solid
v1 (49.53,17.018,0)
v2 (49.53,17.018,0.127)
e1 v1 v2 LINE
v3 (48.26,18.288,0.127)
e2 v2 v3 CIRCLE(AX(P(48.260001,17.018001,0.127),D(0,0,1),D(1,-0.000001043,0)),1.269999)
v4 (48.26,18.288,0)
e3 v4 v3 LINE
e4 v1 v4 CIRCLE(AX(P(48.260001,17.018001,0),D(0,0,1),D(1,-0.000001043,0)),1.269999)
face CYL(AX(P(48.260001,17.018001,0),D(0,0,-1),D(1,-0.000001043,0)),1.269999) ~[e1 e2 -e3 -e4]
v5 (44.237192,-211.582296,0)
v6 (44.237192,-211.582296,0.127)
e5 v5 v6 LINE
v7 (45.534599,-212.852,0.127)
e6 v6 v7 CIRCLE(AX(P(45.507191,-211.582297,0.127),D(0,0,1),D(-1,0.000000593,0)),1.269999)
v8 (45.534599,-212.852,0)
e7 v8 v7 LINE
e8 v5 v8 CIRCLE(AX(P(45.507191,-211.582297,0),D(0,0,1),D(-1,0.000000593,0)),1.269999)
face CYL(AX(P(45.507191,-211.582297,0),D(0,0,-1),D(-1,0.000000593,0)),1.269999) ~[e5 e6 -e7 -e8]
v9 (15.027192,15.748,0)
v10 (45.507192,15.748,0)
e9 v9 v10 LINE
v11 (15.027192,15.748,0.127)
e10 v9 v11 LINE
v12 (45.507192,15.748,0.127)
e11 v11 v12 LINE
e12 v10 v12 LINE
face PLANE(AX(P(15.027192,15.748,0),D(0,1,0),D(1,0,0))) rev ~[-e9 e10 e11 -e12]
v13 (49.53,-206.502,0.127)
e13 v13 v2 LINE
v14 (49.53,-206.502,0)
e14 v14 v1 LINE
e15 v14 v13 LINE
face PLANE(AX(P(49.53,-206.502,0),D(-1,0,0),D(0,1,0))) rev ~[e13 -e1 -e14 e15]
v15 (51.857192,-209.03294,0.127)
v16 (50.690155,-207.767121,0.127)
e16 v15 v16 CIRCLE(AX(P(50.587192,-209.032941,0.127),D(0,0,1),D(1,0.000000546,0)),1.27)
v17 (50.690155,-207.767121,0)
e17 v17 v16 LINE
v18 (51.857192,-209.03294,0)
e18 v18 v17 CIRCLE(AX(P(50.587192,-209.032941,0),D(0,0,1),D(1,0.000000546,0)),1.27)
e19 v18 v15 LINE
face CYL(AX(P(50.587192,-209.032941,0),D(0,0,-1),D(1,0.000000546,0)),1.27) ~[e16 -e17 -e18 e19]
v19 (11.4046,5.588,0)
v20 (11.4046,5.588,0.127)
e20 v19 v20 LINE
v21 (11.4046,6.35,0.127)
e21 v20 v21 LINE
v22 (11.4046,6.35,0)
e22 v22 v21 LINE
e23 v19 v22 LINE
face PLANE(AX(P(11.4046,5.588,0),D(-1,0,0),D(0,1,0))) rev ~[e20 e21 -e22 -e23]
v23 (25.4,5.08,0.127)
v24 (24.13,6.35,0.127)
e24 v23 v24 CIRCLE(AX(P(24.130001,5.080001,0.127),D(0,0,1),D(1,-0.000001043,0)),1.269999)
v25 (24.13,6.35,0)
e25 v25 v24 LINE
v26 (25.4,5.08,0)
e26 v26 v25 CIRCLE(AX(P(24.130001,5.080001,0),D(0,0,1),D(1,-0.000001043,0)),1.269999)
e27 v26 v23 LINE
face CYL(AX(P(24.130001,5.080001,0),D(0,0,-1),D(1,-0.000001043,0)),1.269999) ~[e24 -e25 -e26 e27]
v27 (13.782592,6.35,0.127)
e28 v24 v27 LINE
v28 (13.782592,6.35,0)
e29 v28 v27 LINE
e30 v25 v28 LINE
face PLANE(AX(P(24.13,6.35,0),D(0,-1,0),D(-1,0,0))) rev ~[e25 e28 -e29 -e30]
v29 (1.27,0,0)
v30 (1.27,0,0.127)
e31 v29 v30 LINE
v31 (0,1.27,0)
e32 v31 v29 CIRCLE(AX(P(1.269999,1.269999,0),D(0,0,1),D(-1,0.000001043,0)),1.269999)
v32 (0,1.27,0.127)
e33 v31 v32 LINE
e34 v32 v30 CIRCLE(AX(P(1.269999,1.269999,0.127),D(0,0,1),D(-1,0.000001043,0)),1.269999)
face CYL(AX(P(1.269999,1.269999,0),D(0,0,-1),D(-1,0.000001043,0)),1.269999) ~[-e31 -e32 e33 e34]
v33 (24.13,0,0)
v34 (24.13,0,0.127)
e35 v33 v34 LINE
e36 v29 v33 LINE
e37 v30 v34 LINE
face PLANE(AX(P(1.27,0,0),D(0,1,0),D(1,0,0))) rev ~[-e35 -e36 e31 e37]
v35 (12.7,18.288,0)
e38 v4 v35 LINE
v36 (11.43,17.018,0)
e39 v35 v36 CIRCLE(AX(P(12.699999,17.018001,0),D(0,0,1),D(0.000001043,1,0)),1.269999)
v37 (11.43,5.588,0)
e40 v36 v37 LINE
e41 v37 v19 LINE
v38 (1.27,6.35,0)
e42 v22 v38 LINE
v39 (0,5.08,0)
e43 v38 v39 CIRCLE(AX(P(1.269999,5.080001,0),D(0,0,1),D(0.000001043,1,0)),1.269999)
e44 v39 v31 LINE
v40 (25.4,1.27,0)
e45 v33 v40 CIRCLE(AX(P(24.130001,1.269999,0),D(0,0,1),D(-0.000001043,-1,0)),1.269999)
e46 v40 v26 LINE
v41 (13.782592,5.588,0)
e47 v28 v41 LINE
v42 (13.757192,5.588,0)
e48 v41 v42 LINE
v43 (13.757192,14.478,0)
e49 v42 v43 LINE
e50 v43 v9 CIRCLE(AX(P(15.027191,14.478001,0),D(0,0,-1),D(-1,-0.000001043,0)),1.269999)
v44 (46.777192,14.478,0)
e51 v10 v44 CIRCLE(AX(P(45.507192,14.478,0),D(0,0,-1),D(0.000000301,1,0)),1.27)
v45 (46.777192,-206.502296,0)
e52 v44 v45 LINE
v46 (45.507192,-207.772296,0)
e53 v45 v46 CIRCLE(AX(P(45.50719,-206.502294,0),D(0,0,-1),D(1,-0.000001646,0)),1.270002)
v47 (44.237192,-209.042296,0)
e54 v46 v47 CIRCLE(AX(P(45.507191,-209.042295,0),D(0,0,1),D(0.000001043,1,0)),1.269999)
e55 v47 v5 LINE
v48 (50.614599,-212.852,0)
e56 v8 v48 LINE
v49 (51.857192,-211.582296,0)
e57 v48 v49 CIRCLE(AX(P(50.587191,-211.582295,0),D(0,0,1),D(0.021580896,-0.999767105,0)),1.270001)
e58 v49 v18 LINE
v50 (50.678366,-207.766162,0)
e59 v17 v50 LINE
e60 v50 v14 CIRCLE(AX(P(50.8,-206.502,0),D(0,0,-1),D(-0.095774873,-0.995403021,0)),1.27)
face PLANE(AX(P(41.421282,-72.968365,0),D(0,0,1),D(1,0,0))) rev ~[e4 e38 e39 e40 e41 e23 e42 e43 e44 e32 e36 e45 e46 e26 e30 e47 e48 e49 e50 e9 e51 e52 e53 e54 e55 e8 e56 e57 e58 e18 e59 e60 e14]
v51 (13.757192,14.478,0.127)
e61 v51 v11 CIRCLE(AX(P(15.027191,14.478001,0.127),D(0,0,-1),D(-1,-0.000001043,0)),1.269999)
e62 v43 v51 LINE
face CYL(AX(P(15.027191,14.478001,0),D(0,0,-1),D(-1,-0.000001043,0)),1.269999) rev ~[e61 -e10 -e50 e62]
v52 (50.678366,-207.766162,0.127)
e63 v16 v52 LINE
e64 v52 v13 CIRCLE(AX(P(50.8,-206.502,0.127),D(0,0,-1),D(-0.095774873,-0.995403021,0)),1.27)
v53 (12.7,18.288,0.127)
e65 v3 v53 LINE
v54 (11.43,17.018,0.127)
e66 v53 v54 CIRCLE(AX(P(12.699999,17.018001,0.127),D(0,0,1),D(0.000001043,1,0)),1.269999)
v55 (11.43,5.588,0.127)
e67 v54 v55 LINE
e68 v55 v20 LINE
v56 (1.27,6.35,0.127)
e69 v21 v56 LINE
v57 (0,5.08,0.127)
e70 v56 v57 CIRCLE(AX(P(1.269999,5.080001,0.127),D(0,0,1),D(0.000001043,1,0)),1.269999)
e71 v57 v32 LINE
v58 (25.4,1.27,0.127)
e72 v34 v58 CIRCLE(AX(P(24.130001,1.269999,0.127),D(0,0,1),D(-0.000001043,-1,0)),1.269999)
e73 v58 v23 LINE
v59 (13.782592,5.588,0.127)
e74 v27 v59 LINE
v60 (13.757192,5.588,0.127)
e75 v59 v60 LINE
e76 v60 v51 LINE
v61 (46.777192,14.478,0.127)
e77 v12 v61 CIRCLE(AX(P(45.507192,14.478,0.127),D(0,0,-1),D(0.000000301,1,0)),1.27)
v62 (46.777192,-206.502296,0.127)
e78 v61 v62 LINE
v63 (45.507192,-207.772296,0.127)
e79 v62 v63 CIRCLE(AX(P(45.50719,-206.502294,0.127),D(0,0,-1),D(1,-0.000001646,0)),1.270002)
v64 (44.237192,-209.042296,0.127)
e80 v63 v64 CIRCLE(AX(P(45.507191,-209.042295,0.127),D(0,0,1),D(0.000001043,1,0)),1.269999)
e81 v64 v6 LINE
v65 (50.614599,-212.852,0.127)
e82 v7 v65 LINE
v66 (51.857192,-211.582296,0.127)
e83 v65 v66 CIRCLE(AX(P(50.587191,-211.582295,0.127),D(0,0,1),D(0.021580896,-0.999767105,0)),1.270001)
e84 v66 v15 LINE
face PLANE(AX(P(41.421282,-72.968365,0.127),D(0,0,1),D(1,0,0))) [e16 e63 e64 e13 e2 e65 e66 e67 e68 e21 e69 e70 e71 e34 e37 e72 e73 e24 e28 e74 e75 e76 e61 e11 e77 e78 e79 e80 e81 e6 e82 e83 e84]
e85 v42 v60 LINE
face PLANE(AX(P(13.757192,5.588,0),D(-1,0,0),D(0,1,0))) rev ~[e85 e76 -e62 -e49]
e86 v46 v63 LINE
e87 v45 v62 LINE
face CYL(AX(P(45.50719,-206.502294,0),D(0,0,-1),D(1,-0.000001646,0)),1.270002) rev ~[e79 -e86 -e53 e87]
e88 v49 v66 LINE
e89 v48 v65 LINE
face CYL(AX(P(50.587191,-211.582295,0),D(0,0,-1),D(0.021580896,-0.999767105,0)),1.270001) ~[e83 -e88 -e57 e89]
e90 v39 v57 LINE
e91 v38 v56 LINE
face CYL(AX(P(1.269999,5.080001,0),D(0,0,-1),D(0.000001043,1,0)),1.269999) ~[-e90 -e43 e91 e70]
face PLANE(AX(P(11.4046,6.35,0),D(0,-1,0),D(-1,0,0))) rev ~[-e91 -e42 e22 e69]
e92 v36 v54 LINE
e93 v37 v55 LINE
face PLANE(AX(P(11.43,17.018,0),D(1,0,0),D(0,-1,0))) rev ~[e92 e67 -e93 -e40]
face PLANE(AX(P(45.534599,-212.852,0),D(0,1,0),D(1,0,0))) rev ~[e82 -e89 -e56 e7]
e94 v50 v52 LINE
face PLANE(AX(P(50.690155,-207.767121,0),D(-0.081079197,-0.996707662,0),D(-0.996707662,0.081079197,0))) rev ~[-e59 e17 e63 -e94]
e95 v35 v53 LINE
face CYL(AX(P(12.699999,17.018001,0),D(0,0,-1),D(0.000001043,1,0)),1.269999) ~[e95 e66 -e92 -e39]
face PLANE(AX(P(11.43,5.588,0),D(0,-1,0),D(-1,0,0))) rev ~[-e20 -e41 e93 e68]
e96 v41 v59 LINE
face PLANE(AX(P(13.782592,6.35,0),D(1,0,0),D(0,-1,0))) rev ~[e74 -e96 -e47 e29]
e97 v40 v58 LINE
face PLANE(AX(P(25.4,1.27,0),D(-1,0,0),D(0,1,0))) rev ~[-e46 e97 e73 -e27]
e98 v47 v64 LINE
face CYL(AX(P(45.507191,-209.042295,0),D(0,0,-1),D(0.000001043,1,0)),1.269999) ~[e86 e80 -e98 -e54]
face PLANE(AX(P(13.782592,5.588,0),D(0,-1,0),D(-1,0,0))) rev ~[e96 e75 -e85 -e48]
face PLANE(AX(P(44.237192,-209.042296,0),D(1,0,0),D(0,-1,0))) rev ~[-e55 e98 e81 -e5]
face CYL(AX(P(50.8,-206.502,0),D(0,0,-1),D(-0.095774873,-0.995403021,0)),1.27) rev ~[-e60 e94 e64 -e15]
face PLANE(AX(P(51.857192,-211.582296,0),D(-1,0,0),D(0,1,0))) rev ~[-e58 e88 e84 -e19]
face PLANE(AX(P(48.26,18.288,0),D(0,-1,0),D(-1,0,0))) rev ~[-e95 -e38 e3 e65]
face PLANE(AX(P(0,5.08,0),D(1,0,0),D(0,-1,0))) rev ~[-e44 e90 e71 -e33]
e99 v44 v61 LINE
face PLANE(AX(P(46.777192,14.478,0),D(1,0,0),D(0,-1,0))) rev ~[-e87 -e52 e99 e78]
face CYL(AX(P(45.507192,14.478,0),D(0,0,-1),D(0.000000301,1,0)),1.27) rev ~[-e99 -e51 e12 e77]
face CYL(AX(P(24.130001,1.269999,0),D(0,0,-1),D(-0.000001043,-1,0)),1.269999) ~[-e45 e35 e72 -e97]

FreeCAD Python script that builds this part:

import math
import FreeCAD as App
import Part
import Sketcher
Q = App.Units.Quantity

doc = App.newDocument("Part")
body = doc.addObject("PartDesign::Body", "Body")

# Sketch on XY plane
sketch1 = body.newObject("Sketcher::SketchObject", "Sketch")
sketch1.AttachmentSupport = (doc.getObject("XY_Plane"), [""])
sketch1.MapMode = "FlatFace"
sketch1.addGeometry(Part.ArcOfCircle(Part.Circle(App.Vector(1.269999, 1.269999, 0), App.Vector(0, 0, 1), 1.269999), math.radians(179.99994), math.radians(270.00006)), False)
sketch1.addGeometry(Part.LineSegment(App.Vector(1.27, 0, 0), App.Vector(24.13, 0, 0)), False)
sketch1.addGeometry(Part.ArcOfCircle(Part.Circle(App.Vector(24.130001, 1.269999, 0), App.Vector(0, 0, 1), 1.269999), math.radians(-90.00006), math.radians(0.00006)), False)
sketch1.addGeometry(Part.LineSegment(App.Vector(25.4, 1.27, 0), App.Vector(25.4, 5.08, 0)), False)
sketch1.addGeometry(Part.ArcOfCircle(Part.Circle(App.Vector(24.130001, 5.080001, 0), App.Vector(0, 0, 1), 1.269999), math.radians(-0.00006), math.radians(90.00006)), False)
sketch1.addGeometry(Part.LineSegment(App.Vector(24.13, 6.35, 0), App.Vector(13.782592, 6.35, 0)), False)
sketch1.addGeometry(Part.LineSegment(App.Vector(13.782592, 6.35, 0), App.Vector(13.782592, 5.588, 0)), False)
sketch1.addGeometry(Part.LineSegment(App.Vector(13.782592, 5.588, 0), App.Vector(13.757192, 5.588, 0)), False)
sketch1.addGeometry(Part.LineSegment(App.Vector(13.757192, 5.588, 0), App.Vector(13.757192, 14.478, 0)), False)
sketch1.addGeometry(Part.ArcOfCircle(Part.Circle(App.Vector(15.027191, 14.478001, 0), App.Vector(0, 0, 1), 1.269999), math.radians(89.99994), math.radians(180.00006)), False)
sketch1.addGeometry(Part.LineSegment(App.Vector(15.027192, 15.748, 0), App.Vector(45.507192, 15.748, 0)), False)
sketch1.addGeometry(Part.ArcOfCircle(Part.Circle(App.Vector(45.507192, 14.478, 0), App.Vector(0, 0, 1), 1.27), math.radians(0.000017), math.radians(89.999983)), False)
sketch1.addGeometry(Part.LineSegment(App.Vector(46.777192, 14.478, 0), App.Vector(46.777192, -206.502296, 0)), False)
sketch1.addGeometry(Part.ArcOfCircle(Part.Circle(App.Vector(45.50719, -206.502294, 0), App.Vector(0, 0, 1), 1.270002), math.radians(-89.999906), math.radians(-0.000094)), False)
sketch1.addGeometry(Part.ArcOfCircle(Part.Circle(App.Vector(45.507191, -209.042295, 0), App.Vector(0, 0, 1), 1.269999), math.radians(89.99994), math.radians(180.00006)), False)
sketch1.addGeometry(Part.LineSegment(App.Vector(44.237192, -209.042296, 0), App.Vector(44.237192, -211.582296, 0)), False)
sketch1.addGeometry(Part.ArcOfCircle(Part.Circle(App.Vector(45.507191, -211.582297, 0), App.Vector(0, 0, 1), 1.269999), math.radians(179.999966), math.radians(271.236602)), False)
sketch1.addGeometry(Part.LineSegment(App.Vector(45.534599, -212.852, 0), App.Vector(50.614599, -212.852, 0)), False)
sketch1.addGeometry(Part.ArcOfCircle(Part.Circle(App.Vector(50.587191, -211.582295, 0), App.Vector(0, 0, 1), 1.270001), math.radians(-88.76341), math.radians(-0.000044)), False)
sketch1.addGeometry(Part.LineSegment(App.Vector(51.857192, -211.582296, 0), App.Vector(51.857192, -209.03294, 0)), False)
sketch1.addGeometry(Part.ArcOfCircle(Part.Circle(App.Vector(50.587192, -209.032941, 0), App.Vector(0, 0, 1), 1.27), math.radians(0.000031), math.radians(85.349727)), False)
sketch1.addGeometry(Part.LineSegment(App.Vector(50.690155, -207.767121, 0), App.Vector(50.678366, -207.766162, 0)), False)
sketch1.addGeometry(Part.ArcOfCircle(Part.Circle(App.Vector(50.8, -206.502, 0), App.Vector(0, 0, 1), 1.27), math.radians(179.999997), math.radians(264.50408)), False)
sketch1.addGeometry(Part.LineSegment(App.Vector(49.53, -206.502, 0), App.Vector(49.53, 17.018, 0)), False)
sketch1.addGeometry(Part.ArcOfCircle(Part.Circle(App.Vector(48.260001, 17.018001, 0), App.Vector(0, 0, 1), 1.269999), math.radians(-0.00006), math.radians(90.00006)), False)
sketch1.addGeometry(Part.LineSegment(App.Vector(48.26, 18.288, 0), App.Vector(12.7, 18.288, 0)), False)
sketch1.addGeometry(Part.ArcOfCircle(Part.Circle(App.Vector(12.699999, 17.018001, 0), App.Vector(0, 0, 1), 1.269999), math.radians(89.99994), math.radians(180.00006)), False)
sketch1.addGeometry(Part.LineSegment(App.Vector(11.43, 17.018, 0), App.Vector(11.43, 5.588, 0)), False)
sketch1.addGeometry(Part.LineSegment(App.Vector(11.43, 5.588, 0), App.Vector(11.4046, 5.588, 0)), False)
sketch1.addGeometry(Part.LineSegment(App.Vector(11.4046, 5.588, 0), App.Vector(11.4046, 6.35, 0)), False)
sketch1.addGeometry(Part.LineSegment(App.Vector(11.4046, 6.35, 0), App.Vector(1.27, 6.35, 0)), False)
sketch1.addGeometry(Part.ArcOfCircle(Part.Circle(App.Vector(1.269999, 5.080001, 0), App.Vector(0, 0, 1), 1.269999), math.radians(89.99994), math.radians(180.00006)), False)
sketch1.addGeometry(Part.LineSegment(App.Vector(0, 5.08, 0), App.Vector(0, 1.27, 0)), False)
sketch1.addConstraint(Sketcher.Constraint("Coincident", 0, 2, 1, 1))
sketch1.addConstraint(Sketcher.Constraint("Coincident", 1, 2, 2, 1))
sketch1.addConstraint(Sketcher.Constraint("Coincident", 2, 2, 3, 1))
sketch1.addConstraint(Sketcher.Constraint("Coincident", 3, 2, 4, 1))
sketch1.addConstraint(Sketcher.Constraint("Coincident", 4, 2, 5, 1))
sketch1.addConstraint(Sketcher.Constraint("Coincident", 5, 2, 6, 1))
sketch1.addConstraint(Sketcher.Constraint("Coincident", 6, 2, 7, 1))
sketch1.addConstraint(Sketcher.Constraint("Coincident", 7, 2, 8, 1))
sketch1.addConstraint(Sketcher.Constraint("Coincident", 8, 2, 9, 2))
sketch1.addConstraint(Sketcher.Constraint("Coincident", 9, 1, 10, 1))
sketch1.addConstraint(Sketcher.Constraint("Coincident", 10, 2, 11, 2))
sketch1.addConstraint(Sketcher.Constraint("Coincident", 11, 1, 12, 1))
sketch1.addConstraint(Sketcher.Constraint("Coincident", 12, 2, 13, 2))
sketch1.addConstraint(Sketcher.Constraint("Coincident", 13, 1, 14, 1))
sketch1.addConstraint(Sketcher.Constraint("Coincident", 14, 2, 15, 1))
sketch1.addConstraint(Sketcher.Constraint("Coincident", 15, 2, 16, 1))
sketch1.addConstraint(Sketcher.Constraint("Coincident", 16, 2, 17, 1))
sketch1.addConstraint(Sketcher.Constraint("Coincident", 17, 2, 18, 1))
sketch1.addConstraint(Sketcher.Constraint("Coincident", 18, 2, 19, 1))
sketch1.addConstraint(Sketcher.Constraint("Coincident", 19, 2, 20, 1))
sketch1.addConstraint(Sketcher.Constraint("Coincident", 20, 2, 21, 1))
sketch1.addConstraint(Sketcher.Constraint("Coincident", 21, 2, 22, 2))
sketch1.addConstraint(Sketcher.Constraint("Coincident", 22, 1, 23, 1))
sketch1.addConstraint(Sketcher.Constraint("Coincident", 23, 2, 24, 1))
sketch1.addConstraint(Sketcher.Constraint("Coincident", 24, 2, 25, 1))
sketch1.addConstraint(Sketcher.Constraint("Coincident", 25, 2, 26, 1))
sketch1.addConstraint(Sketcher.Constraint("Coincident", 26, 2, 27, 1))
sketch1.addConstraint(Sketcher.Constraint("Coincident", 27, 2, 28, 1))
sketch1.addConstraint(Sketcher.Constraint("Coincident", 28, 2, 29, 1))
sketch1.addConstraint(Sketcher.Constraint("Coincident", 29, 2, 30, 1))
sketch1.addConstraint(Sketcher.Constraint("Coincident", 30, 2, 31, 1))
sketch1.addConstraint(Sketcher.Constraint("Coincident", 31, 2, 32, 1))
sketch1.addConstraint(Sketcher.Constraint("Coincident", 32, 2, 0, 1))
sketch1.addConstraint(Sketcher.Constraint("Horizontal", 1))
sketch1.addConstraint(Sketcher.Constraint("Vertical", 3))
sketch1.addConstraint(Sketcher.Constraint("Horizontal", 5))
sketch1.addConstraint(Sketcher.Constraint("Vertical", 6))
sketch1.addConstraint(Sketcher.Constraint("Horizontal", 7))
sketch1.addConstraint(Sketcher.Constraint("Vertical", 8))
sketch1.addConstraint(Sketcher.Constraint("Horizontal", 10))
sketch1.addConstraint(Sketcher.Constraint("Vertical", 12))
sketch1.addConstraint(Sketcher.Constraint("Vertical", 15))
sketch1.addConstraint(Sketcher.Constraint("Horizontal", 17))
sketch1.addConstraint(Sketcher.Constraint("Vertical", 19))
sketch1.addConstraint(Sketcher.Constraint("Vertical", 23))
sketch1.addConstraint(Sketcher.Constraint("Horizontal", 25))
sketch1.addConstraint(Sketcher.Constraint("Vertical", 27))
sketch1.addConstraint(Sketcher.Constraint("Horizontal", 28))
sketch1.addConstraint(Sketcher.Constraint("Vertical", 29))
sketch1.addConstraint(Sketcher.Constraint("Horizontal", 30))
sketch1.addConstraint(Sketcher.Constraint("Vertical", 32))
sketch1.addConstraint(Sketcher.Constraint("PointOnObject", 0, 2, -1))
sketch1.addConstraint(Sketcher.Constraint("PointOnObject", 31, 2, -2))
sketch1.addConstraint(Sketcher.Constraint("Radius", 0, Q("0.0499999 in")))
sketch1.addConstraint(Sketcher.Constraint("Radius", 2, Q("0.0499999 in")))
sketch1.addConstraint(Sketcher.Constraint("Radius", 4, Q("0.0499999 in")))
sketch1.addConstraint(Sketcher.Constraint("Radius", 9, Q("0.0499999 in")))
sketch1.addConstraint(Sketcher.Constraint("Radius", 11, Q("0.05 in")))
sketch1.addConstraint(Sketcher.Constraint("Radius", 13, Q("0.0500001 in")))
sketch1.addConstraint(Sketcher.Constraint("Radius", 14, Q("0.0499999 in")))
sketch1.addConstraint(Sketcher.Constraint("Radius", 16, Q("0.05 in")))
sketch1.addConstraint(Sketcher.Constraint("Radius", 18, Q("0.05 in")))
sketch1.addConstraint(Sketcher.Constraint("Radius", 20, Q("0.05 in")))
sketch1.addConstraint(Sketcher.Constraint("Radius", 22, Q("0.05 in")))
sketch1.addConstraint(Sketcher.Constraint("Radius", 24, Q("0.0499999 in")))
sketch1.addConstraint(Sketcher.Constraint("Radius", 26, Q("0.0499999 in")))
sketch1.addConstraint(Sketcher.Constraint("Radius", 31, Q("0.0499999 in")))
sketch1.addConstraint(Sketcher.Constraint("DistanceX", 1, 1, 1, 2, Q("0.9 in")))
sketch1.addConstraint(Sketcher.Constraint("DistanceX", 10, 1, 10, 2, Q("1.2 in")))
sketch1.addConstraint(Sketcher.Constraint("DistanceX", 17, 1, 17, 2, Q("0.2 in")))
sketch1.addConstraint(Sketcher.Constraint("DistanceX", 25, 2, 25, 1, Q("1.4 in")))
sketch1.addConstraint(Sketcher.Constraint("DistanceY", 15, 2, 15, 1, Q("0.1 in")))
sketch1.addConstraint(Sketcher.Constraint("DistanceY", 23, 1, 23, 2, Q("8.8 in")))
sketch1.addConstraint(Sketcher.Constraint("DistanceX", -1, 1, 22, 3, Q("2 in")))
sketch1.addConstraint(Sketcher.Constraint("DistanceX", -1, 1, 2, 2, Q("1 in")))
sketch1.addConstraint(Sketcher.Constraint("DistanceY", 3, 1, 3, 2, Q("0.15 in")))
sketch1.addConstraint(Sketcher.Constraint("DistanceY", 6, 2, 6, 1, Q("0.03 in")))
sketch1.addConstraint(Sketcher.Constraint("DistanceY", 8, 1, 8, 2, Q("0.35 in")))
sketch1.addConstraint(Sketcher.Constraint("DistanceY", 27, 2, 27, 1, Q("0.45 in")))
sketch1.addConstraint(Sketcher.Constraint("DistanceY", 29, 1, 29, 2, Q("0.03 in")))
sketch1.addConstraint(Sketcher.Constraint("DistanceY", 32, 2, 32, 1, Q("0.15 in")))
sketch1.addConstraint(Sketcher.Constraint("DistanceY", -1, 1, 4, 3, Q("0.2000001 in")))
sketch1.addConstraint(Sketcher.Constraint("DistanceX", -1, 1, 26, 3, Q("0.4999999 in")))
sketch1.addConstraint(Sketcher.Constraint("DistanceY", -1, 1, 31, 3, Q("0.2000001 in")))
sketch1.addConstraint(Sketcher.Constraint("DistanceY", -1, 1, 3, 2, Q("0.2 in")))
sketch1.addConstraint(Sketcher.Constraint("DistanceX", -1, 1, 24, 2, Q("1.9 in")))
sketch1.addConstraint(Sketcher.Constraint("DistanceY", -1, 1, 31, 2, Q("0.2 in")))
sketch1.addConstraint(Sketcher.Constraint("DistanceX", 9, 3, 11, 3, Q("1.2 in")))
sketch1.addConstraint(Sketcher.Constraint("DistanceY", 16, 3, 14, 3, Q("0.1000001 in")))
sketch1.addConstraint(Sketcher.Constraint("DistanceX", 16, 3, 18, 3, Q("0.2 in")))
sketch1.addConstraint(Sketcher.Constraint("DistanceX", 13, 3, 18, 3, Q("0.2000001 in")))
sketch1.addConstraint(Sketcher.Constraint("DistanceY", 11, 3, 24, 3, Q("0.1000001 in")))
sketch1.addConstraint(Sketcher.Constraint("DistanceX", 0, 2, 2, 3, Q("0.9000001 in")))
sketch1.addConstraint(Sketcher.Constraint("DistanceY", 8, 2, 26, 3, Q("0.1000001 in")))
sketch1.addConstraint(Sketcher.Constraint("DistanceY", 11, 1, 24, 3, Q("0.1000001 in")))
sketch1.addConstraint(Sketcher.Constraint("DistanceY", 14, 3, 12, 2, Q("0.0999999 in")))
sketch1.addConstraint(Sketcher.Constraint("DistanceX", 13, 1, 20, 3, Q("0.2 in")))
sketch1.addConstraint(Sketcher.Constraint("DistanceY", 16, 3, 14, 2, Q("0.1 in")))
sketch1.addConstraint(Sketcher.Constraint("DistanceY", 11, 1, 23, 2, Q("0.1 in")))
sketch1.addConstraint(Sketcher.Constraint("DistanceX", 7, 2, 7, 1, Q("0.001 in")))
sketch1.addConstraint(Sketcher.Constraint("DistanceX", 28, 2, 28, 1, Q("0.001 in")))
sketch1.addConstraint(Sketcher.Constraint("DistanceX", 30, 2, 30, 1, Q("0.399 in")))
sketch1.addConstraint(Sketcher.Constraint("DistanceY", 22, 3, -1, 1, Q("8.13 in")))
sketch1.addConstraint(Sketcher.Constraint("DistanceX", -1, 1, 4, 2, Q("0.95 in")))
sketch1.addConstraint(Sketcher.Constraint("DistanceY", 16, 2, -1, 1, Q("8.38 in")))
sketch1.addConstraint(Sketcher.Constraint("DistanceX", 8, 2, 9, 1, Q("0.05 in")))
sketch1.addConstraint(Sketcher.Constraint("DistanceX", -1, 1, 16, 2, Q("45.534599 mm")))
sketch1.addConstraint(Sketcher.Constraint("DistanceY", 16, 3, 4, 3, Q("216.662298 mm")))
sketch1.addConstraint(Sketcher.Constraint("DistanceY", 19, 1, 19, 2, Q("2.549356 mm")))
sketch1.addConstraint(Sketcher.Constraint("DistanceY", 20, 3, -1, 1, Q("209.032941 mm")))
sketch1.addConstraint(Sketcher.Constraint("DistanceY", 19, 2, -1, 1, Q("209.03294 mm")))
sketch1.addConstraint(Sketcher.Constraint("DistanceY", 20, 2, -1, 1, Q("207.767121 mm")))
sketch1.addConstraint(Sketcher.Constraint("DistanceY", 21, 2, -1, 1, Q("207.766162 mm")))
pad1 = body.newObject("PartDesign::Pad", "Pad")
pad1.Profile = sketch1
pad1.Length = Q("0.005 in")

doc.recompute()
